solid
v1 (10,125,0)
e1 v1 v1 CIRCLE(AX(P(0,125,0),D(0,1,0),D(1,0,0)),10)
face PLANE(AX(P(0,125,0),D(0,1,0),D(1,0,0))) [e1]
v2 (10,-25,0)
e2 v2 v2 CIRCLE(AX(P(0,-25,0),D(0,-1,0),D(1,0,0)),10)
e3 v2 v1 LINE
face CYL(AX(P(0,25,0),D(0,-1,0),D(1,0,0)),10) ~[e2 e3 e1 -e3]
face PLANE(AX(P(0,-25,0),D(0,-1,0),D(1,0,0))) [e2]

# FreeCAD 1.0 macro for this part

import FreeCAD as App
import Part
import Sketcher
from FreeCAD import Vector
Q = App.Units.Quantity

doc = App.newDocument("Part")
body = doc.addObject("PartDesign::Body", "Body")

# Sketch on XZ plane
sketch1 = body.newObject("Sketcher::SketchObject", "Sketch")
sketch1.AttachmentSupport = (doc.getObject("XZ_Plane"), [""])
sketch1.MapMode = "FlatFace"
sketch1.addGeometry(Part.Circle(Vector(0, 0, 0), Vector(0, 0, 1), 10), False)
sketch1.addConstraint([
    Sketcher.Constraint("Coincident", 0, 3, -1, 1),
    Sketcher.Constraint("Diameter", 0, Q("20 mm")),
])
pad1 = body.newObject("PartDesign::Pad", "Pad")
pad1.Profile = sketch1
pad1.Length = 25

# Sketch on XZ plane
sketch2 = body.newObject("Sketcher::SketchObject", "Sketch001")
sketch2.AttachmentSupport = (doc.getObject("XZ_Plane"), [""])
sketch2.MapMode = "FlatFace"
sketch2.addGeometry(Part.Circle(Vector(0, 0, 0), Vector(0, 0, 1), 10), False)
sketch2.addConstraint([
    Sketcher.Constraint("Coincident", 0, 3, -1, 1),
    Sketcher.Constraint("Diameter", 0, Q("20 mm")),
])
pad2 = body.newObject("PartDesign::Pad", "Pad001")
pad2.Profile = sketch2
pad2.Length = 25
pad2.Reversed = True

# Sketch on XZ plane
sketch3 = body.newObject("Sketcher::SketchObject", "Sketch002")
sketch3.AttachmentSupport = (doc.getObject("XZ_Plane"), [""])
sketch3.MapMode = "FlatFace"
sketch3.AttachmentOffset = App.Placement(Vector(0, 0, -25), App.Rotation())
sketch3.addGeometry(Part.Circle(Vector(0, 0, 0), Vector(0, 0, 1), 10), False)
sketch3.addConstraint([
    Sketcher.Constraint("Coincident", 0, 3, -1, 1),
    Sketcher.Constraint("Diameter", 0, Q("20 mm")),
])
pad3 = body.newObject("PartDesign::Pad", "Pad002")
pad3.Profile = sketch3
pad3.Length = 100
pad3.Reversed = True

doc.recompute()
